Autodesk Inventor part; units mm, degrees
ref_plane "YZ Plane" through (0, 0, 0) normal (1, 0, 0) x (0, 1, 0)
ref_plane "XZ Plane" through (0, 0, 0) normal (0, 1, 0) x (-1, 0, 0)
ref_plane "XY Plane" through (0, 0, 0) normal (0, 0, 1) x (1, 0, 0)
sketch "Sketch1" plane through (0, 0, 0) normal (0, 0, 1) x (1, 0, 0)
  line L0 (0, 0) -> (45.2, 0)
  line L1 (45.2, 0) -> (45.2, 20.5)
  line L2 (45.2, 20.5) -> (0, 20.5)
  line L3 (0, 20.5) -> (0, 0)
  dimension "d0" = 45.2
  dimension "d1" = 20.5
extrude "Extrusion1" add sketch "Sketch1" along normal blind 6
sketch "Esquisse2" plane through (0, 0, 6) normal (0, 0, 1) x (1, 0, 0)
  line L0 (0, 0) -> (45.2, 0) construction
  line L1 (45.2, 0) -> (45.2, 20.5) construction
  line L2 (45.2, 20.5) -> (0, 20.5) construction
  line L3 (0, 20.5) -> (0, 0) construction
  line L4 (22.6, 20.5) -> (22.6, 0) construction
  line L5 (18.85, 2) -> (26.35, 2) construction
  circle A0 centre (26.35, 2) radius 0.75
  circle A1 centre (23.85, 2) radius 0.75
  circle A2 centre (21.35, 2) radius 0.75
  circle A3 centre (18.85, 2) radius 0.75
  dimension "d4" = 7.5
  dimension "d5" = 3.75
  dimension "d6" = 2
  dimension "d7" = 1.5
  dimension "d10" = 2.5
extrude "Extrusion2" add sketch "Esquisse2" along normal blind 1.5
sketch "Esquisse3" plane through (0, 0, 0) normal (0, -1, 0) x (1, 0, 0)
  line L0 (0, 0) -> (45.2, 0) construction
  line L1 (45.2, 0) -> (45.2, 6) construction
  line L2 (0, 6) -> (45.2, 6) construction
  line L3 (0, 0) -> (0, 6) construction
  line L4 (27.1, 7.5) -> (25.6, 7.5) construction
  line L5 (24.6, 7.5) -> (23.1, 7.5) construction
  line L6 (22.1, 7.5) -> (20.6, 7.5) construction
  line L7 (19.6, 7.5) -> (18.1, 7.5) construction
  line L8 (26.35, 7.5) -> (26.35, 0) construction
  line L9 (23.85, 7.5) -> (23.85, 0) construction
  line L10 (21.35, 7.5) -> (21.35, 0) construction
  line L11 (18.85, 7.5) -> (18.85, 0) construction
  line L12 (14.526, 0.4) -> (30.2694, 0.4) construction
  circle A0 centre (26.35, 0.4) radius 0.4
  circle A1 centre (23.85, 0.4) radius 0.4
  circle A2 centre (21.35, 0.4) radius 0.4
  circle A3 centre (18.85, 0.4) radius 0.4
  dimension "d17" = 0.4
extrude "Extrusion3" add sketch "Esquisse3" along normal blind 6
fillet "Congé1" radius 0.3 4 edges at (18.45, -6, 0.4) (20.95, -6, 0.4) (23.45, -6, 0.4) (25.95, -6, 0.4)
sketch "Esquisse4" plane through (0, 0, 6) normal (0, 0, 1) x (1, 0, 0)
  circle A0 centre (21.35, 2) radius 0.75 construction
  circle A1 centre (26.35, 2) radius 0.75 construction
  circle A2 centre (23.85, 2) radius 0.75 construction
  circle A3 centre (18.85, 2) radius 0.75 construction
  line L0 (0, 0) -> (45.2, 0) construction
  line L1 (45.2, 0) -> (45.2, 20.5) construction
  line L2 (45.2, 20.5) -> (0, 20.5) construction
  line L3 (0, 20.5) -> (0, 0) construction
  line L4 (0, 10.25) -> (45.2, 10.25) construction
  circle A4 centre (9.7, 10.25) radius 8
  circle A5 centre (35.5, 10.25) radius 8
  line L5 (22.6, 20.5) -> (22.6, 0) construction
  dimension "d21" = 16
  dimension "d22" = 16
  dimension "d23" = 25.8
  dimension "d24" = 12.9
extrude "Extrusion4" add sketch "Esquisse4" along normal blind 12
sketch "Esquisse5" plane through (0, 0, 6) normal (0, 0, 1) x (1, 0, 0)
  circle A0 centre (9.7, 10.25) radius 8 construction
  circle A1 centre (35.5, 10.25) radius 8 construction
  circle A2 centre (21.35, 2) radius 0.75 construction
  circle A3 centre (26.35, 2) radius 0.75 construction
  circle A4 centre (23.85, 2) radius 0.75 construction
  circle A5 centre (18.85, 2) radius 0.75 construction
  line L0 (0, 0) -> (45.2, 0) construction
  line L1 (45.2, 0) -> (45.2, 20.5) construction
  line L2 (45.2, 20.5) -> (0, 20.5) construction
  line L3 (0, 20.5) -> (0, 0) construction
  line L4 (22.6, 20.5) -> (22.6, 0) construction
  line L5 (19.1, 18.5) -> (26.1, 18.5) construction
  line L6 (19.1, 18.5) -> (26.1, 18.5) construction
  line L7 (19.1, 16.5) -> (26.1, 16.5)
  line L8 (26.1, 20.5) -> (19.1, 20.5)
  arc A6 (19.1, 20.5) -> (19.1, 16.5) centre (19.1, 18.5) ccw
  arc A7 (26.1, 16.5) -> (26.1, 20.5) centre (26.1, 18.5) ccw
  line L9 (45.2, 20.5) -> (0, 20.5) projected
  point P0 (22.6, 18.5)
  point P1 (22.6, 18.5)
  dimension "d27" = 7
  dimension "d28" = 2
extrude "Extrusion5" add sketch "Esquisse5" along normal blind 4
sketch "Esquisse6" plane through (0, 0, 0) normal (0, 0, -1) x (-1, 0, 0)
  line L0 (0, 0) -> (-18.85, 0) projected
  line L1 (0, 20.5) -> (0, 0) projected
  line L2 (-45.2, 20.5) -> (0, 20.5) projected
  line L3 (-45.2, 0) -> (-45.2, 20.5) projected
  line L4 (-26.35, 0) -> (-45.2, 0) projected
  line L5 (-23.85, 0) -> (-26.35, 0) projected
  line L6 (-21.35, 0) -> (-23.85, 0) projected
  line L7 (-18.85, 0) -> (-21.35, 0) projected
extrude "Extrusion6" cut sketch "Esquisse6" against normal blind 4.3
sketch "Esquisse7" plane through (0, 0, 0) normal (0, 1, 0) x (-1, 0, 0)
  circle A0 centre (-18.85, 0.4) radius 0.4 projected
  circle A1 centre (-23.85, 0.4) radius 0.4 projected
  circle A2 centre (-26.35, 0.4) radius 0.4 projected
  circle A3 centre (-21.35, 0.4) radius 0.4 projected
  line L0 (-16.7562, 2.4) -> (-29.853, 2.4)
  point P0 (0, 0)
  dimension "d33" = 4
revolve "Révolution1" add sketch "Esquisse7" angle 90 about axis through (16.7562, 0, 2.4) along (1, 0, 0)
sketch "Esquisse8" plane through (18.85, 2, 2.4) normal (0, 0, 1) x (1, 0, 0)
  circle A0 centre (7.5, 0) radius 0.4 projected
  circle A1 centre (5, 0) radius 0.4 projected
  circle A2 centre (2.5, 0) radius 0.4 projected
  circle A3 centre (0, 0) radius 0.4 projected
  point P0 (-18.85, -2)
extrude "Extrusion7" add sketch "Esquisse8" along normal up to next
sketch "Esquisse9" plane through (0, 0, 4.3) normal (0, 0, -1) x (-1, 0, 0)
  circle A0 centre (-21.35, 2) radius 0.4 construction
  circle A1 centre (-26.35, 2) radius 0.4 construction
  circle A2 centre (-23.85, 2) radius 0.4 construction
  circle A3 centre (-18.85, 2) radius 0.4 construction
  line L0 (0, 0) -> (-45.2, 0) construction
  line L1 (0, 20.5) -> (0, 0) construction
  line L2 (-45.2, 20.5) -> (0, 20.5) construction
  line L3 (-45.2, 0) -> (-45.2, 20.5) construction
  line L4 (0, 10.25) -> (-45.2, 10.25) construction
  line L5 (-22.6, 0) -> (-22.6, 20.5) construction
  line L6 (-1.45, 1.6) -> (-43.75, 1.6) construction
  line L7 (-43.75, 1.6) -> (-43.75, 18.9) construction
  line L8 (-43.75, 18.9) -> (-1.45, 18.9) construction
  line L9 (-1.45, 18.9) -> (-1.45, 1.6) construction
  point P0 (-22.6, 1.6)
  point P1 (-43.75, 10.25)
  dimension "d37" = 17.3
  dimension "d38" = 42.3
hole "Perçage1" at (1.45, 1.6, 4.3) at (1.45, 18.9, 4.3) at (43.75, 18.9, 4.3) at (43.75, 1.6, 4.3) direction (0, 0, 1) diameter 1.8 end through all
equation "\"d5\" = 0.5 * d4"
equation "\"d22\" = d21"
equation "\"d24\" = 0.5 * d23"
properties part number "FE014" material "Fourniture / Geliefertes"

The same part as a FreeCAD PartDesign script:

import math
import FreeCAD as App
import Part
import Sketcher

V = App.Vector


def edges_at(feature, points):
    """Names of the edges that pass closest to the given points."""
    edges = feature.Shape.Edges
    near = lambda p: min(range(len(edges)), key=lambda i: edges[i].distToShape(Part.Vertex(*p))[0])
    return sorted({f"Edge{near(p) + 1}" for p in points})


def add_polygon(sketch, points):
    """Adds a closed chain of lines whose ends are joined by coincident constraints."""
    first, n = sketch.GeometryCount, len(points)
    for a, b in zip(points, points[1:] + points[:1]):
        sketch.addGeometry(Part.LineSegment(App.Vector(*a, 0), App.Vector(*b, 0)), False)
    for i in range(n):
        sketch.addConstraint(Sketcher.Constraint("Coincident", first + i, 2, first + (i + 1) % n, 1))

doc = App.newDocument("Part")
body = doc.addObject("PartDesign::Body", "Body")
body.AllowCompound = True

# Sketch on XY plane
sketch1 = body.newObject("Sketcher::SketchObject", "Sketch")
sketch1.AttachmentSupport = (doc.getObject("XY_Plane"), [""])
sketch1.MapMode = "FlatFace"
add_polygon(sketch1, [(0, 20), (0, 0), (45, 0), (45, 20)])  # lines 0-3
sketch1.addConstraint(Sketcher.Constraint("Vertical", 0))
sketch1.addConstraint(Sketcher.Constraint("Horizontal", 1))
sketch1.addConstraint(Sketcher.Constraint("Vertical", 2))
sketch1.addConstraint(Sketcher.Constraint("Horizontal", 3))
sketch1.addConstraint(Sketcher.Constraint("Coincident", 0, 2, -1, 1))
sketch1.addConstraint(Sketcher.Constraint("DistanceX", 1, 1, 1, 2, 45.2))
sketch1.addConstraint(Sketcher.Constraint("DistanceY", 0, 2, 0, 1, 20.5))
pad1 = body.newObject("PartDesign::Pad", "Pad")
pad1.Profile = sketch1
pad1.Length = 6

# Sketch on XY plane
sketch2 = body.newObject("Sketcher::SketchObject", "Sketch001")
sketch2.AttachmentSupport = (doc.getObject("XY_Plane"), [""])
sketch2.MapMode = "FlatFace"
sketch2.AttachmentOffset = App.Placement(V(0, 0, 6), App.Rotation())
sketch2.addGeometry(Part.Circle(V(26.4, 2, 0), V(0, 0, 1), 0.8), False)
sketch2.addGeometry(Part.Circle(V(23.9, 2, 0), V(0, 0, 1), 0.8), False)
sketch2.addGeometry(Part.Circle(V(21.4, 2, 0), V(0, 0, 1), 0.8), False)
sketch2.addGeometry(Part.Circle(V(18.9, 2, 0), V(0, 0, 1), 0.8), False)
sketch2.addConstraint(Sketcher.Constraint("Equal", 0, 1))
sketch2.addConstraint(Sketcher.Constraint("Equal", 1, 2))
sketch2.addConstraint(Sketcher.Constraint("Equal", 2, 3))
sketch2.addConstraint(Sketcher.Constraint("Horizontal", 0, 3, 1, 3))
sketch2.addConstraint(Sketcher.Constraint("Horizontal", 1, 3, 2, 3))
sketch2.addConstraint(Sketcher.Constraint("Horizontal", 2, 3, 3, 3))
sketch2.addConstraint(Sketcher.Constraint("Diameter", 0, 1.5))
sketch2.addConstraint(Sketcher.Constraint("DistanceY", -1, 1, 0, 3, 2.0))
sketch2.addConstraint(Sketcher.Constraint("DistanceX", 1, 3, 0, 3, 2.5))
sketch2.addConstraint(Sketcher.Constraint("DistanceX", 2, 3, 1, 3, 2.5))
sketch2.addConstraint(Sketcher.Constraint("DistanceX", 3, 3, 2, 3, 2.5))
sketch2.addConstraint(Sketcher.Constraint("DistanceX", -1, 1, 0, 3, 26.35))
pad2 = body.newObject("PartDesign::Pad", "Pad001")
pad2.Profile = sketch2
pad2.Length = 1.5

# Sketch on XZ plane
sketch3 = body.newObject("Sketcher::SketchObject", "Sketch002")
sketch3.AttachmentSupport = (doc.getObject("XZ_Plane"), [""])
sketch3.MapMode = "FlatFace"
sketch3.addGeometry(Part.Circle(V(26.35, 0.4, 0), V(0, 0, 1), 0.4), False)
sketch3.addGeometry(Part.Circle(V(23.85, 0.4, 0), V(0, 0, 1), 0.4), False)
sketch3.addGeometry(Part.Circle(V(21.35, 0.4, 0), V(0, 0, 1), 0.4), False)
sketch3.addGeometry(Part.Circle(V(18.85, 0.4, 0), V(0, 0, 1), 0.4), False)
sketch3.addConstraint(Sketcher.Constraint("Equal", 0, 1))
sketch3.addConstraint(Sketcher.Constraint("Equal", 1, 2))
sketch3.addConstraint(Sketcher.Constraint("Equal", 2, 3))
sketch3.addConstraint(Sketcher.Constraint("Horizontal", 0, 3, 1, 3))
sketch3.addConstraint(Sketcher.Constraint("Horizontal", 1, 3, 2, 3))
sketch3.addConstraint(Sketcher.Constraint("Horizontal", 2, 3, 3, 3))
sketch3.addConstraint(Sketcher.Constraint("Diameter", 0, 0.8))
sketch3.addConstraint(Sketcher.Constraint("DistanceY", -1, 1, 0, 3, 0.4))
sketch3.addConstraint(Sketcher.Constraint("DistanceX", 2, 3, 0, 3, 5.0))
sketch3.addConstraint(Sketcher.Constraint("DistanceX", 3, 3, 1, 3, 5.0))
sketch3.addConstraint(Sketcher.Constraint("DistanceX", 1, 3, 0, 3, 2.5))
sketch3.addConstraint(Sketcher.Constraint("DistanceX", -1, 1, 0, 3, 26.35))
pad3 = body.newObject("PartDesign::Pad", "Pad002")
pad3.Profile = sketch3
pad3.Length = 6
doc.recompute()

fillet = body.newObject("PartDesign::Fillet", "Fillet")
fillet.Base = (pad3, edges_at(pad3, [
    (18.45, -6, 0.4),
    (20.95, -6, 0.4),
    (23.45, -6, 0.4),
    (25.95, -6, 0.4),
]))
fillet.Radius = 0.3

# Sketch on XY plane
sketch4 = body.newObject("Sketcher::SketchObject", "Sketch003")
sketch4.AttachmentSupport = (doc.getObject("XY_Plane"), [""])
sketch4.MapMode = "FlatFace"
sketch4.AttachmentOffset = App.Placement(V(0, 0, 6), App.Rotation())
sketch4.addGeometry(Part.Circle(V(10, 10, 0), V(0, 0, 1), 8), False)
sketch4.addGeometry(Part.Circle(V(36, 10, 0), V(0, 0, 1), 8), False)
sketch4.addConstraint(Sketcher.Constraint("Equal", 0, 1))
sketch4.addConstraint(Sketcher.Constraint("Horizontal", 0, 3, 1, 3))
sketch4.addConstraint(Sketcher.Constraint("Diameter", 0, 16.0))
sketch4.addConstraint(Sketcher.Constraint("DistanceX", 0, 3, 1, 3, 25.8))
sketch4.addConstraint(Sketcher.Constraint("DistanceX", -1, 1, 0, 3, 9.7))
sketch4.addConstraint(Sketcher.Constraint("DistanceY", -1, 1, 0, 3, 10.25))
pad4 = body.newObject("PartDesign::Pad", "Pad003")
pad4.Profile = sketch4
pad4.Length = 12

# Sketch on XY plane
sketch5 = body.newObject("Sketcher::SketchObject", "Sketch004")
sketch5.AttachmentSupport = (doc.getObject("XY_Plane"), [""])
sketch5.MapMode = "FlatFace"
sketch5.AttachmentOffset = App.Placement(V(0, 0, 6), App.Rotation())
sketch5.addGeometry(Part.ArcOfCircle(Part.Circle(V(19.1, 18.5, 0), V(0, 0, 1), 2), math.radians(90), math.radians(270)), False)
sketch5.addGeometry(Part.LineSegment(V(19.1, 16.5, 0), V(26.1, 16.5, 0)), False)
sketch5.addGeometry(Part.ArcOfCircle(Part.Circle(V(26.1, 18.5, 0), V(0, 0, 1), 2), math.radians(-90), math.radians(90)), False)
sketch5.addGeometry(Part.LineSegment(V(26.1, 20.5, 0), V(19.1, 20.5, 0)), False)
sketch5.addConstraint(Sketcher.Constraint("Tangent", 0, 2, 1, 1))
sketch5.addConstraint(Sketcher.Constraint("Tangent", 1, 2, 2, 1))
sketch5.addConstraint(Sketcher.Constraint("Tangent", 2, 2, 3, 1))
sketch5.addConstraint(Sketcher.Constraint("Tangent", 3, 2, 0, 1))
sketch5.addConstraint(Sketcher.Constraint("Horizontal", 1))
sketch5.addConstraint(Sketcher.Constraint("Horizontal", 3))
sketch5.addConstraint(Sketcher.Constraint("Radius", 0, 2.0))
sketch5.addConstraint(Sketcher.Constraint("DistanceX", 1, 1, 1, 2, 7.0))
sketch5.addConstraint(Sketcher.Constraint("DistanceX", -1, 1, 0, 3, 19.1))
sketch5.addConstraint(Sketcher.Constraint("DistanceY", -1, 1, 0, 3, 18.5))
pad5 = body.newObject("PartDesign::Pad", "Pad004")
pad5.Profile = sketch5
pad5.Length = 4

# Sketch on XY plane
sketch6 = body.newObject("Sketcher::SketchObject", "Sketch005")
sketch6.AttachmentSupport = (doc.getObject("XY_Plane"), [""])
sketch6.MapMode = "FlatFace"
add_polygon(sketch6, [(45, 0), (0, 0), (0, 20), (45, 20)])  # lines 0-3
sketch6.addConstraint(Sketcher.Constraint("Horizontal", 0))
sketch6.addConstraint(Sketcher.Constraint("Vertical", 1))
sketch6.addConstraint(Sketcher.Constraint("Horizontal", 2))
sketch6.addConstraint(Sketcher.Constraint("Vertical", 3))
sketch6.addConstraint(Sketcher.Constraint("Coincident", 0, 2, -1, 1))
sketch6.addConstraint(Sketcher.Constraint("DistanceX", 0, 2, 0, 1, 45.2))
sketch6.addConstraint(Sketcher.Constraint("DistanceY", 1, 1, 1, 2, 20.5))
pocket1 = body.newObject("PartDesign::Pocket", "Pocket")
pocket1.Profile = sketch6
pocket1.Length = 4.3
pocket1.Reversed = True

# Sketch on XZ plane
sketch7 = body.newObject("Sketcher::SketchObject", "Sketch006")
sketch7.AttachmentSupport = (doc.getObject("XZ_Plane"), [""])
sketch7.MapMode = "FlatFace"
sketch7.addGeometry(Part.Circle(V(18.85, 0.4, 0), V(0, 0, 1), 0.4), False)
sketch7.addGeometry(Part.Circle(V(23.85, 0.4, 0), V(0, 0, 1), 0.4), False)
sketch7.addGeometry(Part.Circle(V(26.35, 0.4, 0), V(0, 0, 1), 0.4), False)
sketch7.addGeometry(Part.Circle(V(21.35, 0.4, 0), V(0, 0, 1), 0.4), False)
sketch7.addGeometry(Part.LineSegment(V(18.85, 2.4, 0), V(26.35, 2.4, 0)), True)  # axis
sketch7.addConstraint(Sketcher.Constraint("Horizontal", 4))
sketch7.addConstraint(Sketcher.Constraint("Equal", 0, 1))
sketch7.addConstraint(Sketcher.Constraint("Equal", 1, 2))
sketch7.addConstraint(Sketcher.Constraint("Equal", 2, 3))
sketch7.addConstraint(Sketcher.Constraint("Horizontal", 0, 3, 1, 3))
sketch7.addConstraint(Sketcher.Constraint("Horizontal", 1, 3, 2, 3))
sketch7.addConstraint(Sketcher.Constraint("Horizontal", 2, 3, 3, 3))
sketch7.addConstraint(Sketcher.Constraint("Vertical", 0, 3, 4, 1))
sketch7.addConstraint(Sketcher.Constraint("Vertical", 2, 3, 4, 2))
sketch7.addConstraint(Sketcher.Constraint("Diameter", 0, 0.8))
sketch7.addConstraint(Sketcher.Constraint("DistanceX", 4, 1, 4, 2, 7.5))
sketch7.addConstraint(Sketcher.Constraint("DistanceX", 0, 3, 1, 3, 5.0))
sketch7.addConstraint(Sketcher.Constraint("DistanceX", 3, 3, 2, 3, 5.0))
sketch7.addConstraint(Sketcher.Constraint("DistanceY", 0, 3, 4, 1, 2.0))
sketch7.addConstraint(Sketcher.Constraint("DistanceY", -1, 1, 0, 3, 0.4))
sketch7.addConstraint(Sketcher.Constraint("DistanceX", -1, 1, 0, 3, 18.85))
revolution = body.newObject("PartDesign::Revolution", "Revolution")
revolution.Profile = sketch7
revolution.ReferenceAxis = (sketch7, ["Axis0"])
revolution.Angle = 90

# Sketch on XY plane
sketch8 = body.newObject("Sketcher::SketchObject", "Sketch007")
sketch8.AttachmentSupport = (doc.getObject("XY_Plane"), [""])
sketch8.MapMode = "FlatFace"
sketch8.AttachmentOffset = App.Placement(V(0, 0, 2.4), App.Rotation())
sketch8.addGeometry(Part.Circle(V(26.35, 2, 0), V(0, 0, 1), 0.4), False)
sketch8.addGeometry(Part.Circle(V(23.85, 2, 0), V(0, 0, 1), 0.4), False)
sketch8.addGeometry(Part.Circle(V(21.35, 2, 0), V(0, 0, 1), 0.4), False)
sketch8.addGeometry(Part.Circle(V(18.85, 2, 0), V(0, 0, 1), 0.4), False)
sketch8.addConstraint(Sketcher.Constraint("Equal", 0, 1))
sketch8.addConstraint(Sketcher.Constraint("Equal", 1, 2))
sketch8.addConstraint(Sketcher.Constraint("Equal", 2, 3))
sketch8.addConstraint(Sketcher.Constraint("Horizontal", 0, 3, 1, 3))
sketch8.addConstraint(Sketcher.Constraint("Horizontal", 1, 3, 2, 3))
sketch8.addConstraint(Sketcher.Constraint("Horizontal", 2, 3, 3, 3))
sketch8.addConstraint(Sketcher.Constraint("Diameter", 0, 0.8))
sketch8.addConstraint(Sketcher.Constraint("DistanceY", -1, 1, 0, 3, 2.0))
sketch8.addConstraint(Sketcher.Constraint("DistanceX", 2, 3, 0, 3, 5.0))
sketch8.addConstraint(Sketcher.Constraint("DistanceX", 3, 3, 1, 3, 5.0))
sketch8.addConstraint(Sketcher.Constraint("DistanceX", 1, 3, 0, 3, 2.5))
sketch8.addConstraint(Sketcher.Constraint("DistanceX", -1, 1, 0, 3, 26.35))
pad6 = body.newObject("PartDesign::Pad", "Pad005")
pad6.Profile = sketch8
pad6.Type = "UpToFirst"

# Sketch on XY plane
sketch9 = body.newObject("Sketcher::SketchObject", "Sketch008")
sketch9.AttachmentSupport = (doc.getObject("XY_Plane"), [""])
sketch9.MapMode = "FlatFace"
sketch9.AttachmentOffset = App.Placement(V(0, 0, 4.3), App.Rotation())
sketch9.addGeometry(Part.Circle(V(1.4, 1.6, 0), V(0, 0, 1), 0.9), False)
sketch9.addGeometry(Part.Circle(V(1.4, 18.9, 0), V(0, 0, 1), 0.9), False)
sketch9.addGeometry(Part.Circle(V(43.8, 18.9, 0), V(0, 0, 1), 0.9), False)
sketch9.addGeometry(Part.Circle(V(43.8, 1.6, 0), V(0, 0, 1), 0.9), False)
sketch9.addConstraint(Sketcher.Constraint("Equal", 0, 1))
sketch9.addConstraint(Sketcher.Constraint("Equal", 1, 2))
sketch9.addConstraint(Sketcher.Constraint("Equal", 2, 3))
sketch9.addConstraint(Sketcher.Constraint("Horizontal", 1, 3, 2, 3))
sketch9.addConstraint(Sketcher.Constraint("Horizontal", 0, 3, 3, 3))
sketch9.addConstraint(Sketcher.Constraint("Vertical", 0, 3, 1, 3))
sketch9.addConstraint(Sketcher.Constraint("Vertical", 2, 3, 3, 3))
sketch9.addConstraint(Sketcher.Constraint("Diameter", 0, 1.8))
sketch9.addConstraint(Sketcher.Constraint("DistanceY", -1, 1, 0, 3, 1.6))
sketch9.addConstraint(Sketcher.Constraint("DistanceY", -1, 1, 1, 3, 18.9))
sketch9.addConstraint(Sketcher.Constraint("DistanceX", 1, 3, 2, 3, 42.3))
sketch9.addConstraint(Sketcher.Constraint("DistanceX", -1, 1, 0, 3, 1.45))
doc.recompute()
hole = body.newObject("PartDesign::Hole", "Hole")
hole.Profile = sketch9
hole.ThreadType = "None"
hole.Diameter = 1.8
hole.DepthType = "ThroughAll"
hole.Reversed = True

doc.recompute()
